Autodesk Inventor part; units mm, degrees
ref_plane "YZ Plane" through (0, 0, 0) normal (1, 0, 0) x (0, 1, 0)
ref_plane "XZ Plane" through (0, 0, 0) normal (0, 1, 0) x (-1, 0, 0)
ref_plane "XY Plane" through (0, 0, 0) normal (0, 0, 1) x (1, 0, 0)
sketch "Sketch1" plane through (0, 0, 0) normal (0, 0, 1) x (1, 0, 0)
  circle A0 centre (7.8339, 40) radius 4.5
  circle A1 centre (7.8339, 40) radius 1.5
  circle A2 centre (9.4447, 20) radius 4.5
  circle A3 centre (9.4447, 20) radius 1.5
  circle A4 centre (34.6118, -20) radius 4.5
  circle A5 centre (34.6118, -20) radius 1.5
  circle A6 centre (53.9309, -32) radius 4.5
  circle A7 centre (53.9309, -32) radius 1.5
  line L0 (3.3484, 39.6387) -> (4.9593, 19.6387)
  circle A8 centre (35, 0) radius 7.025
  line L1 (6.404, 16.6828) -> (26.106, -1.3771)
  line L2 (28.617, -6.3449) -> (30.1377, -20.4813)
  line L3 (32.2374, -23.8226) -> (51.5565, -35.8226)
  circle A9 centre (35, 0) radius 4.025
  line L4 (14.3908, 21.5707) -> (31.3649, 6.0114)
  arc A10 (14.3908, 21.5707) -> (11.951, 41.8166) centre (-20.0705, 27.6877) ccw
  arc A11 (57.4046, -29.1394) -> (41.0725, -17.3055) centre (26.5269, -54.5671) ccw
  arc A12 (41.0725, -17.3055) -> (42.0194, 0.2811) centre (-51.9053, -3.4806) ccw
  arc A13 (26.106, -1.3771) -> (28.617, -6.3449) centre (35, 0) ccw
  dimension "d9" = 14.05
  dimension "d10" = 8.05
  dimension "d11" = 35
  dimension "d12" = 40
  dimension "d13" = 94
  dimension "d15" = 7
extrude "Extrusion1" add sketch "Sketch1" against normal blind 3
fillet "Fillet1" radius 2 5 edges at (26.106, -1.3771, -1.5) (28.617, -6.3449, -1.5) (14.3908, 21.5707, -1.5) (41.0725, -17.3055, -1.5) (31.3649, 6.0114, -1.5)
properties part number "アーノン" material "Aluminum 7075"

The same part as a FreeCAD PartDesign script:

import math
import FreeCAD as App
import Part
import Sketcher
from FreeCAD import Vector
Q = App.Units.Quantity


def edges_at(feature, points):
    """Names of the edges that pass closest to the given points."""
    edges = feature.Shape.Edges
    near = lambda p: min(range(len(edges)), key=lambda i: edges[i].distToShape(Part.Vertex(*p))[0])
    return sorted({f"Edge{near(p) + 1}" for p in points})

doc = App.newDocument("Part")
body = doc.addObject("PartDesign::Body", "Body")

# Sketch on XY plane
sketch1 = body.newObject("Sketcher::SketchObject", "Sketch")
sketch1.AttachmentSupport = (doc.getObject("XY_Plane"), [""])
sketch1.MapMode = "FlatFace"
sketch1.addGeometry([
    Part.ArcOfCircle(Part.Circle(Vector(7.8339, 40, 0), Vector(0, 0, 1), 4.5), math.radians(23.80865), math.radians(184.605143)),  # 0
    Part.LineSegment(Vector(3.3484, 39.6387, 0), Vector(4.9593, 19.6387, 0)),  # 1
    Part.ArcOfCircle(Part.Circle(Vector(9.4447, 20, 0), Vector(0, 0, 1), 4.5), math.radians(-175.394755), math.radians(-132.509821)),  # 2
    Part.LineSegment(Vector(6.404, 16.6828, 0), Vector(26.106, -1.3771, 0)),  # 3
    Part.ArcOfCircle(Part.Circle(Vector(35, 0, 0), Vector(0, 0, 1), 8.99998), math.radians(-171.198515), math.radians(-135.17151)),  # 4
    Part.LineSegment(Vector(28.617, -6.3449, 0), Vector(30.1377, -20.4813, 0)),  # 5
    Part.ArcOfCircle(Part.Circle(Vector(34.6118, -20, 0), Vector(0, 0, 1), 4.5), math.radians(-173.860035), math.radians(-121.846397)),  # 6
    Part.LineSegment(Vector(32.2374, -23.8226, 0), Vector(51.5565, -35.8226, 0)),  # 7
    Part.ArcOfCircle(Part.Circle(Vector(53.9309, -32, 0), Vector(0, 0, 1), 4.5), math.radians(-121.846397), math.radians(39.471535)),  # 8
    Part.ArcOfCircle(Part.Circle(Vector(26.5269, -54.5671, 0), Vector(0, 0, 1), 40.000004), math.radians(39.471361), math.radians(68.676099)),  # 9
    Part.ArcOfCircle(Part.Circle(Vector(-51.9053, -3.4806, 0), Vector(0, 0, 1), 93.999995), math.radians(-8.457364), math.radians(2.29348)),  # 10
    Part.ArcOfCircle(Part.Circle(Vector(35, 0, 0), Vector(0, 0, 1), 7.025), math.radians(2.29325), math.radians(121.161398)),  # 11
    Part.LineSegment(Vector(31.3649, 6.0114, 0), Vector(14.3908, 21.5707, 0)),  # 12
    Part.ArcOfCircle(Part.Circle(Vector(-20.0705, 27.6877, 0), Vector(0, 0, 1), 34.999984), math.radians(-10.065362), math.radians(23.808591)),  # 13
    Part.Circle(Vector(7.8339, 40, 0), Vector(0, 0, 1), 1.5),  # 14
    Part.Circle(Vector(35, 0, 0), Vector(0, 0, 1), 4.025),  # 15
    Part.Circle(Vector(53.9309, -32, 0), Vector(0, 0, 1), 1.5),  # 16
    Part.Circle(Vector(34.6118, -20, 0), Vector(0, 0, 1), 1.5),  # 17
    Part.Circle(Vector(9.4447, 20, 0), Vector(0, 0, 1), 1.5),  # 18
], False)
sketch1.addConstraint([
    Sketcher.Constraint("Tangent", 0, 2, 1, 1),
    Sketcher.Constraint("Tangent", 1, 2, 2, 1),
    Sketcher.Constraint("Tangent", 2, 2, 3, 1),
    Sketcher.Constraint("Coincident", 3, 2, 4, 1),
    Sketcher.Constraint("Coincident", 4, 2, 5, 1),
    Sketcher.Constraint("Tangent", 5, 2, 6, 1),
    Sketcher.Constraint("Tangent", 6, 2, 7, 1),
    Sketcher.Constraint("Tangent", 7, 2, 8, 1),
    Sketcher.Constraint("Tangent", 8, 2, 9, 1),
    Sketcher.Constraint("Coincident", 9, 2, 10, 1),
    Sketcher.Constraint("Tangent", 10, 2, 11, 1),
    Sketcher.Constraint("Coincident", 11, 2, 12, 1),
    Sketcher.Constraint("Coincident", 12, 2, 13, 1),
    Sketcher.Constraint("Tangent", 13, 2, 0, 1),
    Sketcher.Constraint("Coincident", 11, 3, 4, 3),
    Sketcher.Constraint("Coincident", 14, 3, 0, 3),
    Sketcher.Constraint("Coincident", 15, 3, 4, 3),
    Sketcher.Constraint("Coincident", 16, 3, 8, 3),
    Sketcher.Constraint("Coincident", 17, 3, 6, 3),
    Sketcher.Constraint("Coincident", 18, 3, 2, 3),
    Sketcher.Constraint("Equal", 0, 2),
    Sketcher.Constraint("Equal", 2, 6),
    Sketcher.Constraint("Equal", 6, 8),
    Sketcher.Constraint("Equal", 14, 16),
    Sketcher.Constraint("Equal", 16, 17),
    Sketcher.Constraint("Equal", 17, 18),
    Sketcher.Constraint("PointOnObject", 4, 3, -1),
    Sketcher.Constraint("Parallel", 3, 12),
    Sketcher.Constraint("Radius", 9, Q("40 mm")),
    Sketcher.Constraint("Radius", 10, Q("94 mm")),
    Sketcher.Constraint("Radius", 13, Q("35 mm")),
    Sketcher.Constraint("Diameter", 15, Q("8.05 mm")),
    Sketcher.Constraint("Diameter", 14, Q("3 mm")),
    Sketcher.Constraint("DistanceY", -1, 1, 0, 3, Q("40 mm")),
    Sketcher.Constraint("DistanceX", -1, 1, 4, 3, Q("35 mm")),
    Sketcher.Constraint("Radius", 4, Q("9 mm")),
    Sketcher.Constraint("Radius", 11, Q("7.025 mm")),
    Sketcher.Constraint("DistanceY", 6, 3, 2, 3, Q("40 mm")),
    Sketcher.Constraint("Radius", 0, Q("4.5 mm")),
    Sketcher.Constraint("DistanceY", -1, 1, 2, 3, Q("20 mm")),
    Sketcher.Constraint("DistanceY", 8, 3, -1, 1, Q("32 mm")),
    Sketcher.Constraint("Angle", 3, Q("-42.51 deg")),
    Sketcher.Constraint("Angle", 5, Q("-83.86 deg")),
    Sketcher.Constraint("DistanceX", 10, 3, 2, 3, Q("61.35 mm")),
    Sketcher.Constraint("DistanceX", 2, 2, 0, 3, Q("1.43 mm")),
    Sketcher.Constraint("Distance", 3, Q("26.727 mm")),
    Sketcher.Constraint("Distance", 5, Q("14.218 mm")),
    Sketcher.Constraint("DistanceX", -1, 1, 8, 3, Q("53.931 mm")),
    Sketcher.Constraint("DistanceX", -1, 1, 9, 3, Q("26.527 mm")),
    Sketcher.Constraint("DistanceX", -1, 1, 11, 2, Q("31.365 mm")),
    Sketcher.Constraint("DistanceX", -1, 1, 13, 2, Q("11.951 mm")),
])
pad1 = body.newObject("PartDesign::Pad", "Pad")
pad1.Profile = sketch1
pad1.Length = 3
pad1.Reversed = True
doc.recompute()

fillet = body.newObject("PartDesign::Fillet", "Fillet")
fillet.Base = (pad1, edges_at(pad1, [
    (26.106, -1.377, -1.5),
    (28.617, -6.345, -1.5),
    (14.391, 21.571, -1.5),
    (41.072, -17.305, -1.5),
    (31.365, 6.011, -1.5),
]))
fillet.Radius = 2

doc.recompute()
